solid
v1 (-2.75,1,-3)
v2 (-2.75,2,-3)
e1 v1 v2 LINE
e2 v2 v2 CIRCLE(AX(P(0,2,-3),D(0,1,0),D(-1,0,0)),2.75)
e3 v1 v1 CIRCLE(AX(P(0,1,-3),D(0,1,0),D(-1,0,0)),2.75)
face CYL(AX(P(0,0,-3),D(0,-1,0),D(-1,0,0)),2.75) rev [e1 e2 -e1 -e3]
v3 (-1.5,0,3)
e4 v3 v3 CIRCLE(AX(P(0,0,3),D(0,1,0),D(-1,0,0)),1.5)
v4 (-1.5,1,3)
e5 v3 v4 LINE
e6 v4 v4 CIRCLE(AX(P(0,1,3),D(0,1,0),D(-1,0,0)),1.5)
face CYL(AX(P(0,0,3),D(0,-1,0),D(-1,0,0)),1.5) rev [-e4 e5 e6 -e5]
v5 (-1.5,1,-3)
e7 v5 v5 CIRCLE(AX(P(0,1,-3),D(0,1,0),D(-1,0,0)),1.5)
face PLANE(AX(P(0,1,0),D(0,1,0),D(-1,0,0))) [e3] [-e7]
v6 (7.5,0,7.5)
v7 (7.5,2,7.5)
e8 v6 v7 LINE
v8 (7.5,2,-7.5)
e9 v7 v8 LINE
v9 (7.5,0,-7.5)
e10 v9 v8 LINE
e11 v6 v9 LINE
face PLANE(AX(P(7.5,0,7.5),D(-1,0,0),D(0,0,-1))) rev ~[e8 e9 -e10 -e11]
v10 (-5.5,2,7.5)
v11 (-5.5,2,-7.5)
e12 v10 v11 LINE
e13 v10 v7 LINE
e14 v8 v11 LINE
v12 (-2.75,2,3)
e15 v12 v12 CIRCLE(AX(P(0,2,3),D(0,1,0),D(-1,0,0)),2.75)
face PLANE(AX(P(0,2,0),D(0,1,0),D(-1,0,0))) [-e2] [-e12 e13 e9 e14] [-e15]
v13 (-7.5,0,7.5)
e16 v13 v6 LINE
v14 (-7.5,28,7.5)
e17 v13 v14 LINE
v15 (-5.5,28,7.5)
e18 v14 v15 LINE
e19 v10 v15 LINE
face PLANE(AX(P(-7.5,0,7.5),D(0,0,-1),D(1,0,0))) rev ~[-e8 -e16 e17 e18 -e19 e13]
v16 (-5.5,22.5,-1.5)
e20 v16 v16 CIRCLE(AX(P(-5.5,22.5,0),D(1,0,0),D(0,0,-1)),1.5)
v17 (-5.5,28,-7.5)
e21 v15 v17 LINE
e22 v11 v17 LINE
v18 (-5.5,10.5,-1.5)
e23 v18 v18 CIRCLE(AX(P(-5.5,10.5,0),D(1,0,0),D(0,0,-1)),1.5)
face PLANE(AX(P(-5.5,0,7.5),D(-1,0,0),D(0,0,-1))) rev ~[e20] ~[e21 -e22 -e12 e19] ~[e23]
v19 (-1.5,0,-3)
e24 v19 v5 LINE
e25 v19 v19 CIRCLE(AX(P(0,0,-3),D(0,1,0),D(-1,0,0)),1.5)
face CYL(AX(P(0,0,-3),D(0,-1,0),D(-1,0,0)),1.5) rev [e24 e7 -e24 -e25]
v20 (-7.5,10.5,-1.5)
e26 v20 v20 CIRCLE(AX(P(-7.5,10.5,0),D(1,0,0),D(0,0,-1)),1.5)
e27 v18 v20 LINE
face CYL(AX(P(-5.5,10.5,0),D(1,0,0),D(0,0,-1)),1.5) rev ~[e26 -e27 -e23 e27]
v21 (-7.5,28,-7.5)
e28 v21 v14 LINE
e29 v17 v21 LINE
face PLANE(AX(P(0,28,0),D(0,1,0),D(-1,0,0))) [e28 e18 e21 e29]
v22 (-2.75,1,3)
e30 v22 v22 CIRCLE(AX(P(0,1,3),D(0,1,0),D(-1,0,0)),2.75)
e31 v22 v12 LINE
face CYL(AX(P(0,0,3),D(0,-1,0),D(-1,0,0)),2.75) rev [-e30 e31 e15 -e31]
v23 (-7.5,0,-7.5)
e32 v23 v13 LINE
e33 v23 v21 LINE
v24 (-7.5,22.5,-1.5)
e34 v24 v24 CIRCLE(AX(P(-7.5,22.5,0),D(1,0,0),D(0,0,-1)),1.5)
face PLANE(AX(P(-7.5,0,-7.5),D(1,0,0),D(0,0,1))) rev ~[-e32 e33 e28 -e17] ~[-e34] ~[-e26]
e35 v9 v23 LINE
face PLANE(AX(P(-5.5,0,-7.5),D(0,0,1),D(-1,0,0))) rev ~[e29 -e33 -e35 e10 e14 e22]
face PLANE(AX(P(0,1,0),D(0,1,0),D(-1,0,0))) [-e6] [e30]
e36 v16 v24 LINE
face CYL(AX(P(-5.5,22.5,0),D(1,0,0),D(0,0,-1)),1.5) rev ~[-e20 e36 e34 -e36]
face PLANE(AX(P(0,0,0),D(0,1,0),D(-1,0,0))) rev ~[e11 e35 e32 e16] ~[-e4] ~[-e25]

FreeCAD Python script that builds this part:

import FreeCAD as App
import Part
import Sketcher

V = App.Vector

doc = App.newDocument("Part")
body = doc.addObject("PartDesign::Body", "Body")

# Sketch on XZ plane
sketch1 = body.newObject("Sketcher::SketchObject", "Sketch")
sketch1.AttachmentSupport = (doc.getObject("XZ_Plane"), [""])
sketch1.MapMode = "FlatFace"
sketch1.addGeometry([
    Part.LineSegment(V(-5.5, -7.5, 0), V(-5.5, 7.5, 0)),  # 0
    Part.LineSegment(V(-5.5, 7.5, 0), V(7.5, 7.5, 0)),  # 1
    Part.LineSegment(V(7.5, 7.5, 0), V(7.5, -7.5, 0)),  # 2
    Part.LineSegment(V(7.5, -7.5, 0), V(-5.5, -7.5, 0)),  # 3
    Part.Circle(V(0, -3, 0), V(0, 0, 1), 2.75),  # 4
    Part.Circle(V(0, 3, 0), V(0, 0, 1), 2.75),  # 5
], False)
sketch1.addConstraint([
    Sketcher.Constraint("Coincident", 0, 2, 1, 1),
    Sketcher.Constraint("Coincident", 1, 2, 2, 1),
    Sketcher.Constraint("Coincident", 2, 2, 3, 1),
    Sketcher.Constraint("Coincident", 3, 2, 0, 1),
    Sketcher.Constraint("Vertical", 0),
    Sketcher.Constraint("Horizontal", 1),
    Sketcher.Constraint("Vertical", 2),
    Sketcher.Constraint("Horizontal", 3),
    Sketcher.Constraint("Equal", 4, 5),
    Sketcher.Constraint("Symmetric", 4, 3, 5, 3, -1, 1),
    Sketcher.Constraint("PointOnObject", 4, 3, -2),
    Sketcher.Constraint("Diameter", 4, 5.5),
    Sketcher.Constraint("DistanceY", 0, 1, 0, 2, 15.0),
    Sketcher.Constraint("DistanceY", 4, 3, -1, 1, 3.0),
    Sketcher.Constraint("DistanceX", 0, 2, -1, 1, 5.5),
    Sketcher.Constraint("DistanceY", 5, 3, 0, 2, 4.5),
    Sketcher.Constraint("DistanceX", 1, 1, 1, 2, 13.0),
])
pad1 = body.newObject("PartDesign::Pad", "Pad")
pad1.Profile = sketch1
pad1.Length = 2
pad1.Reversed = True

# Sketch on XZ plane
sketch2 = body.newObject("Sketcher::SketchObject", "Sketch001")
sketch2.AttachmentSupport = (doc.getObject("XZ_Plane"), [""])
sketch2.MapMode = "FlatFace"
sketch2.addGeometry([
    Part.Circle(V(0, 3, 0), V(0, 0, 1), 2.75),
    Part.Circle(V(0, 3, 0), V(0, 0, 1), 1.5),
    Part.Circle(V(0, -3, 0), V(0, 0, 1), 2.75),
    Part.Circle(V(0, -3, 0), V(0, 0, 1), 1.5),
], False)
sketch2.addConstraint([
    Sketcher.Constraint("Coincident", 1, 3, 0, 3),
    Sketcher.Constraint("Coincident", 3, 3, 2, 3),
    Sketcher.Constraint("Equal", 0, 2),
    Sketcher.Constraint("Equal", 1, 3),
    Sketcher.Constraint("Symmetric", 0, 3, 2, 3, -1, 1),
    Sketcher.Constraint("PointOnObject", 0, 3, -2),
    Sketcher.Constraint("Diameter", 1, 3.0),
    Sketcher.Constraint("Diameter", 0, 5.5),
    Sketcher.Constraint("DistanceY", -1, 1, 0, 3, 3.0),
])
pad2 = body.newObject("PartDesign::Pad", "Pad001")
pad2.Profile = sketch2
pad2.Length = 1
pad2.Reversed = True

# Sketch on XZ plane
sketch3 = body.newObject("Sketcher::SketchObject", "Sketch002")
sketch3.AttachmentSupport = (doc.getObject("XZ_Plane"), [""])
sketch3.MapMode = "FlatFace"
sketch3.addGeometry([
    Part.LineSegment(V(-7.5, -7.5, 0), V(-7.5, 7.5, 0)),
    Part.LineSegment(V(-7.5, 7.5, 0), V(-5.5, 7.5, 0)),
    Part.LineSegment(V(-5.5, 7.5, 0), V(-5.5, -7.5, 0)),
    Part.LineSegment(V(-5.5, -7.5, 0), V(-7.5, -7.5, 0)),
], False)
sketch3.addConstraint([
    Sketcher.Constraint("Coincident", 0, 2, 1, 1),
    Sketcher.Constraint("Coincident", 1, 2, 2, 1),
    Sketcher.Constraint("Coincident", 2, 2, 3, 1),
    Sketcher.Constraint("Coincident", 3, 2, 0, 1),
    Sketcher.Constraint("Vertical", 0),
    Sketcher.Constraint("Horizontal", 1),
    Sketcher.Constraint("Vertical", 2),
    Sketcher.Constraint("Horizontal", 3),
    Sketcher.Constraint("DistanceX", 1, 1, 1, 2, 2.0),
    Sketcher.Constraint("DistanceY", 0, 1, 0, 2, 15.0),
    Sketcher.Constraint("DistanceX", 1, 2, -1, 1, 5.5),
    Sketcher.Constraint("DistanceY", -1, 1, 0, 2, 7.5),
])
pad3 = body.newObject("PartDesign::Pad", "Pad002")
pad3.Profile = sketch3
pad3.Length = 28
pad3.Reversed = True

# Sketch on YZ plane
sketch4 = body.newObject("Sketcher::SketchObject", "Sketch003")
sketch4.AttachmentSupport = (doc.getObject("YZ_Plane"), [""])
sketch4.MapMode = "FlatFace"
sketch4.AttachmentOffset = App.Placement(V(0, 0, -5.5), App.Rotation())
sketch4.addGeometry([
    Part.Circle(V(10.5, 0, 0), V(0, 0, 1), 1.5),
    Part.Circle(V(22.5, 0, 0), V(0, 0, 1), 1.5),
], False)
sketch4.addConstraint([
    Sketcher.Constraint("Equal", 0, 1),
    Sketcher.Constraint("PointOnObject", 0, 3, -1),
    Sketcher.Constraint("PointOnObject", 1, 3, -1),
    Sketcher.Constraint("Diameter", 0, 3.0),
    Sketcher.Constraint("DistanceX", 0, 3, 1, 3, 12.0),
    Sketcher.Constraint("DistanceX", -1, 1, 0, 3, 10.5),
])
pocket1 = body.newObject("PartDesign::Pocket", "Pocket")
pocket1.Profile = sketch4
pocket1.Length = 2

doc.recompute()
